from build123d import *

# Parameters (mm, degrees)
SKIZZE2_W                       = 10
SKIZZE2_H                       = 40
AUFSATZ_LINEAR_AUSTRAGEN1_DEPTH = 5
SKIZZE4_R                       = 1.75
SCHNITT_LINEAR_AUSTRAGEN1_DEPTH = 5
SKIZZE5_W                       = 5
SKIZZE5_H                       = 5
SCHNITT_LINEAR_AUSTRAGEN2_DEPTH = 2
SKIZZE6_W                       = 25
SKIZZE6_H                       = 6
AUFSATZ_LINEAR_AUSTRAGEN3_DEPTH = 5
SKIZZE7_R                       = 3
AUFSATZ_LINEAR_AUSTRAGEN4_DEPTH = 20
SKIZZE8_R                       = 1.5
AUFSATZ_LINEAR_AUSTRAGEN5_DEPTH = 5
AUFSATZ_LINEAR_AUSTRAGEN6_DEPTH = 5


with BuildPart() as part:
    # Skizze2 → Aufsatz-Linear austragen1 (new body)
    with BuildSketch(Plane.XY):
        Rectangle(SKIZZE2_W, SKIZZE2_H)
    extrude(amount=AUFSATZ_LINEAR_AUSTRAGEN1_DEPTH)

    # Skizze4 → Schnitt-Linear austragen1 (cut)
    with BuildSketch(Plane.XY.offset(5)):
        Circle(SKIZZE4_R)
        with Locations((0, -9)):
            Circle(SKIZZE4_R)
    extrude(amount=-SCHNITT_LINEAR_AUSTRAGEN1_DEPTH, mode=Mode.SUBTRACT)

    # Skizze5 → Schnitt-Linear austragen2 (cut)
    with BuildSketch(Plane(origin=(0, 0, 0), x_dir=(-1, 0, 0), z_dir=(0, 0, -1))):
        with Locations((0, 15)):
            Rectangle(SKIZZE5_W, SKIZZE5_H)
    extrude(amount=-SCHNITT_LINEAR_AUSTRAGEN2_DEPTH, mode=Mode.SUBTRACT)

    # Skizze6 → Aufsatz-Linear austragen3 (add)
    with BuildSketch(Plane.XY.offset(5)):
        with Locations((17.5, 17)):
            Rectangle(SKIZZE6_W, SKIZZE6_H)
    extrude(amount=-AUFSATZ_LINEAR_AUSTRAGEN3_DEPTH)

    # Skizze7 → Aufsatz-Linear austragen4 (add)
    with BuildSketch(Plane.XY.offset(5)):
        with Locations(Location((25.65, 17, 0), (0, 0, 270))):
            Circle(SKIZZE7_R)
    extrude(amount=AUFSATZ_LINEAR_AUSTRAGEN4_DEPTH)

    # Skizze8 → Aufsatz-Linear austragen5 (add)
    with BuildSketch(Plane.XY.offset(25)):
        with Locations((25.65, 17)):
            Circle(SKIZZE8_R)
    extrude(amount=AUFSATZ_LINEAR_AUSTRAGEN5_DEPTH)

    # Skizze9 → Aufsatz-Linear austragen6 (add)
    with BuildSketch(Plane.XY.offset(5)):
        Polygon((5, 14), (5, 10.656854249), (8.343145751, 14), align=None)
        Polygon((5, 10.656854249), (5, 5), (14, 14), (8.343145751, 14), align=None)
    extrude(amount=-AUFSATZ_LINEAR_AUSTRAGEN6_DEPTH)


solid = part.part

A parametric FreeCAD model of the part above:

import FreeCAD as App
import Part
import Sketcher
Q = App.Units.Quantity

doc = App.newDocument("Part")
body = doc.addObject("PartDesign::Body", "Body")

# Sketch on XY plane
sketch1 = body.newObject("Sketcher::SketchObject", "Sketch")
sketch1.AttachmentSupport = (doc.getObject("XY_Plane"), [""])
sketch1.MapMode = "FlatFace"
sketch1.addGeometry(Part.LineSegment(App.Vector(-5, 20, 0), App.Vector(-5, -20, 0)), False)
sketch1.addGeometry(Part.LineSegment(App.Vector(-5, -20, 0), App.Vector(5, -20, 0)), False)
sketch1.addGeometry(Part.LineSegment(App.Vector(5, -20, 0), App.Vector(5, 20, 0)), False)
sketch1.addGeometry(Part.LineSegment(App.Vector(5, 20, 0), App.Vector(-5, 20, 0)), False)
sketch1.addConstraint(Sketcher.Constraint("Coincident", 0, 2, 1, 1))
sketch1.addConstraint(Sketcher.Constraint("Coincident", 1, 2, 2, 1))
sketch1.addConstraint(Sketcher.Constraint("Coincident", 2, 2, 3, 1))
sketch1.addConstraint(Sketcher.Constraint("Coincident", 3, 2, 0, 1))
sketch1.addConstraint(Sketcher.Constraint("Vertical", 0))
sketch1.addConstraint(Sketcher.Constraint("Horizontal", 1))
sketch1.addConstraint(Sketcher.Constraint("Vertical", 2))
sketch1.addConstraint(Sketcher.Constraint("Horizontal", 3))
sketch1.addConstraint(Sketcher.Constraint("Symmetric", 0, 2, 2, 2, -1, 1))
sketch1.addConstraint(Sketcher.Constraint("DistanceX", 1, 1, 1, 2, Q("10 mm")))
sketch1.addConstraint(Sketcher.Constraint("DistanceY", 0, 2, 0, 1, Q("40 mm")))
pad1 = body.newObject("PartDesign::Pad", "Pad")
pad1.Profile = sketch1
pad1.Length = 5

# Sketch on XY plane
sketch2 = body.newObject("Sketcher::SketchObject", "Sketch001")
sketch2.AttachmentSupport = (doc.getObject("XY_Plane"), [""])
sketch2.MapMode = "FlatFace"
sketch2.AttachmentOffset = App.Placement(App.Vector(0, 0, 5), App.Rotation())
sketch2.addGeometry(Part.Circle(App.Vector(0, 0, 0), App.Vector(0, 0, 1), 1.8), False)
sketch2.addGeometry(Part.Circle(App.Vector(0, -9, 0), App.Vector(0, 0, 1), 1.8), False)
sketch2.addConstraint(Sketcher.Constraint("Coincident", 0, 3, -1, 1))
sketch2.addConstraint(Sketcher.Constraint("Equal", 0, 1))
sketch2.addConstraint(Sketcher.Constraint("PointOnObject", 1, 3, -2))
sketch2.addConstraint(Sketcher.Constraint("Diameter", 0, Q("3.5 mm")))
sketch2.addConstraint(Sketcher.Constraint("DistanceY", 1, 3, -1, 1, Q("9 mm")))
pocket1 = body.newObject("PartDesign::Pocket", "Pocket")
pocket1.Profile = sketch2
pocket1.Length = 5

# Sketch on XY plane
sketch3 = body.newObject("Sketcher::SketchObject", "Sketch002")
sketch3.AttachmentSupport = (doc.getObject("XY_Plane"), [""])
sketch3.MapMode = "FlatFace"
sketch3.addGeometry(Part.LineSegment(App.Vector(2, 18, 0), App.Vector(2, 12, 0)), False)
sketch3.addGeometry(Part.LineSegment(App.Vector(2, 12, 0), App.Vector(-2, 12, 0)), False)
sketch3.addGeometry(Part.LineSegment(App.Vector(-2, 12, 0), App.Vector(-2, 18, 0)), False)
sketch3.addGeometry(Part.LineSegment(App.Vector(-2, 18, 0), App.Vector(2, 18, 0)), False)
sketch3.addConstraint(Sketcher.Constraint("Coincident", 0, 2, 1, 1))
sketch3.addConstraint(Sketcher.Constraint("Coincident", 1, 2, 2, 1))
sketch3.addConstraint(Sketcher.Constraint("Coincident", 2, 2, 3, 1))
sketch3.addConstraint(Sketcher.Constraint("Coincident", 3, 2, 0, 1))
sketch3.addConstraint(Sketcher.Constraint("Vertical", 0))
sketch3.addConstraint(Sketcher.Constraint("Horizontal", 1))
sketch3.addConstraint(Sketcher.Constraint("Vertical", 2))
sketch3.addConstraint(Sketcher.Constraint("Horizontal", 3))
sketch3.addConstraint(Sketcher.Constraint("Equal", 3, 0))
sketch3.addConstraint(Sketcher.Constraint("DistanceX", 1, 2, 1, 1, Q("5 mm")))
sketch3.addConstraint(Sketcher.Constraint("DistanceX", -1, 1, 0, 2, Q("2.5 mm")))
sketch3.addConstraint(Sketcher.Constraint("DistanceY", -1, 1, 0, 2, Q("12.5 mm")))
pocket2 = body.newObject("PartDesign::Pocket", "Pocket001")
pocket2.Profile = sketch3
pocket2.Length = 2
pocket2.Reversed = True

# Sketch on XY plane
sketch4 = body.newObject("Sketcher::SketchObject", "Sketch003")
sketch4.AttachmentSupport = (doc.getObject("XY_Plane"), [""])
sketch4.MapMode = "FlatFace"
sketch4.AttachmentOffset = App.Placement(App.Vector(0, 0, 5), App.Rotation())
sketch4.addGeometry(Part.LineSegment(App.Vector(5, 20, 0), App.Vector(5, 14, 0)), False)
sketch4.addGeometry(Part.LineSegment(App.Vector(5, 14, 0), App.Vector(30, 14, 0)), False)
sketch4.addGeometry(Part.LineSegment(App.Vector(30, 14, 0), App.Vector(30, 20, 0)), False)
sketch4.addGeometry(Part.LineSegment(App.Vector(30, 20, 0), App.Vector(5, 20, 0)), False)
sketch4.addConstraint(Sketcher.Constraint("Coincident", 0, 2, 1, 1))
sketch4.addConstraint(Sketcher.Constraint("Coincident", 1, 2, 2, 1))
sketch4.addConstraint(Sketcher.Constraint("Coincident", 2, 2, 3, 1))
sketch4.addConstraint(Sketcher.Constraint("Coincident", 3, 2, 0, 1))
sketch4.addConstraint(Sketcher.Constraint("Vertical", 0))
sketch4.addConstraint(Sketcher.Constraint("Horizontal", 1))
sketch4.addConstraint(Sketcher.Constraint("Vertical", 2))
sketch4.addConstraint(Sketcher.Constraint("Horizontal", 3))
sketch4.addConstraint(Sketcher.Constraint("DistanceX", 1, 1, 1, 2, Q("25 mm")))
sketch4.addConstraint(Sketcher.Constraint("DistanceY", 0, 2, 0, 1, Q("6 mm")))
sketch4.addConstraint(Sketcher.Constraint("DistanceX", -1, 1, 0, 2, Q("5 mm")))
sketch4.addConstraint(Sketcher.Constraint("DistanceY", -1, 1, 0, 2, Q("14 mm")))
pad2 = body.newObject("PartDesign::Pad", "Pad001")
pad2.Profile = sketch4
pad2.Length = 5
pad2.Reversed = True

# Sketch on XY plane
sketch5 = body.newObject("Sketcher::SketchObject", "Sketch004")
sketch5.AttachmentSupport = (doc.getObject("XY_Plane"), [""])
sketch5.MapMode = "FlatFace"
sketch5.AttachmentOffset = App.Placement(App.Vector(0, 0, 5), App.Rotation())
sketch5.addGeometry(Part.Circle(App.Vector(25.6, 17, 0), App.Vector(0, 0, 1), 3), False)
sketch5.addConstraint(Sketcher.Constraint("Diameter", 0, Q("6 mm")))
sketch5.addConstraint(Sketcher.Constraint("DistanceY", -1, 1, 0, 3, Q("17 mm")))
sketch5.addConstraint(Sketcher.Constraint("DistanceX", -1, 1, 0, 3, Q("25.65 mm")))
pad3 = body.newObject("PartDesign::Pad", "Pad002")
pad3.Profile = sketch5
pad3.Length = 20

# Sketch on XY plane
sketch6 = body.newObject("Sketcher::SketchObject", "Sketch005")
sketch6.AttachmentSupport = (doc.getObject("XY_Plane"), [""])
sketch6.MapMode = "FlatFace"
sketch6.AttachmentOffset = App.Placement(App.Vector(0, 0, 25), App.Rotation())
sketch6.addGeometry(Part.Circle(App.Vector(25.6, 17, 0), App.Vector(0, 0, 1), 1.5), False)
sketch6.addConstraint(Sketcher.Constraint("Diameter", 0, Q("3 mm")))
sketch6.addConstraint(Sketcher.Constraint("DistanceY", -1, 1, 0, 3, Q("17 mm")))
sketch6.addConstraint(Sketcher.Constraint("DistanceX", -1, 1, 0, 3, Q("25.65 mm")))
pad4 = body.newObject("PartDesign::Pad", "Pad003")
pad4.Profile = sketch6
pad4.Length = 5

# Sketch on XY plane
sketch7 = body.newObject("Sketcher::SketchObject", "Sketch006")
sketch7.AttachmentSupport = (doc.getObject("XY_Plane"), [""])
sketch7.MapMode = "FlatFace"
sketch7.AttachmentOffset = App.Placement(App.Vector(0, 0, 5), App.Rotation())
sketch7.addGeometry(Part.LineSegment(App.Vector(5, 14, 0), App.Vector(5, 5, 0)), False)
sketch7.addGeometry(Part.LineSegment(App.Vector(5, 5, 0), App.Vector(14, 14, 0)), False)
sketch7.addGeometry(Part.LineSegment(App.Vector(14, 14, 0), App.Vector(5, 14, 0)), False)
sketch7.addConstraint(Sketcher.Constraint("Coincident", 0, 2, 1, 1))
sketch7.addConstraint(Sketcher.Constraint("Coincident", 1, 2, 2, 1))
sketch7.addConstraint(Sketcher.Constraint("Coincident", 2, 2, 0, 1))
sketch7.addConstraint(Sketcher.Constraint("Vertical", 0))
sketch7.addConstraint(Sketcher.Constraint("Horizontal", 2))
sketch7.addConstraint(Sketcher.Constraint("Equal", 2, 0))
sketch7.addConstraint(Sketcher.Constraint("DistanceX", 2, 2, 2, 1, Q("9 mm")))
sketch7.addConstraint(Sketcher.Constraint("DistanceX", -1, 1, 0, 2, Q("5 mm")))
sketch7.addConstraint(Sketcher.Constraint("DistanceY", -1, 1, 0, 2, Q("5 mm")))
pad5 = body.newObject("PartDesign::Pad", "Pad004")
pad5.Profile = sketch7
pad5.Length = 5
pad5.Reversed = True

doc.recompute()
